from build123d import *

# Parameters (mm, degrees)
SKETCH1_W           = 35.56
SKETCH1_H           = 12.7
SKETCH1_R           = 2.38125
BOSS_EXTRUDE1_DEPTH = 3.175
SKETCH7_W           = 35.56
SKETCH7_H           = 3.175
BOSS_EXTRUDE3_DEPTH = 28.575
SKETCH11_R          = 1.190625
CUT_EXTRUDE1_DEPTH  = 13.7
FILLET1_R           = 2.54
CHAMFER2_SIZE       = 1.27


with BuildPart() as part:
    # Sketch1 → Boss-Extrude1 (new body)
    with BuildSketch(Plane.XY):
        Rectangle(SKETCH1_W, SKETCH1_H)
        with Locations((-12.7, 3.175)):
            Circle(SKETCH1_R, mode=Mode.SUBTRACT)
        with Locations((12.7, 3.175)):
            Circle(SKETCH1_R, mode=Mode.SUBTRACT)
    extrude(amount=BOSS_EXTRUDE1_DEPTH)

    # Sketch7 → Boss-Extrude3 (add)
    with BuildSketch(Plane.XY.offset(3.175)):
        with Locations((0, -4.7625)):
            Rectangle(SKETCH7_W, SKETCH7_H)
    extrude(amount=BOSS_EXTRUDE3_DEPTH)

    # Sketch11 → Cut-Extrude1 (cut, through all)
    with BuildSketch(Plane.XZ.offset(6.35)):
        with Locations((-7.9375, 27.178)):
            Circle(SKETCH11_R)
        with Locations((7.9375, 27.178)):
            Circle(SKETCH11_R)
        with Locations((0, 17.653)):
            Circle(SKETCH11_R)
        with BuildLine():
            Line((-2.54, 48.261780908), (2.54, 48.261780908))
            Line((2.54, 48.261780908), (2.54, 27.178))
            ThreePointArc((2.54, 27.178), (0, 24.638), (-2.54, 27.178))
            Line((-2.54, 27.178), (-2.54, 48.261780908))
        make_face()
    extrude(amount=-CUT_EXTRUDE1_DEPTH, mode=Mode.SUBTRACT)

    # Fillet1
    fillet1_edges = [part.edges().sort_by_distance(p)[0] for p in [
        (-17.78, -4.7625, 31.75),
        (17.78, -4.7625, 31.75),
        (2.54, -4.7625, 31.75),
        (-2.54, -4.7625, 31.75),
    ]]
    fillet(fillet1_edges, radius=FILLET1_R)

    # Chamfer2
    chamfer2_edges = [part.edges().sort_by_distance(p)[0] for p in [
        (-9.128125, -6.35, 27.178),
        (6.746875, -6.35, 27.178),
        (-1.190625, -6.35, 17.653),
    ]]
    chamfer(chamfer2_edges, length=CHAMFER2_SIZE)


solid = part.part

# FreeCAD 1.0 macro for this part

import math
import FreeCAD as App
import Part
import Sketcher
from FreeCAD import Vector
Q = App.Units.Quantity


def edges_at(feature, points):
    """Names of the edges that pass closest to the given points."""
    edges = feature.Shape.Edges
    near = lambda p: min(range(len(edges)), key=lambda i: edges[i].distToShape(Part.Vertex(*p))[0])
    return sorted({f"Edge{near(p) + 1}" for p in points})

doc = App.newDocument("Part")
body = doc.addObject("PartDesign::Body", "Body")

sketch1 = body.newObject("Sketcher::SketchObject", "Sketch")
sketch1.AttachmentSupport = (doc.getObject("XY_Plane"), [""])
sketch1.MapMode = "FlatFace"
sketch1.addGeometry([
    Part.LineSegment(Vector(-17.8, 6.3, 0), Vector(-17.8, -6.3, 0)),
    Part.LineSegment(Vector(-17.8, -6.3, 0), Vector(17.8, -6.3, 0)),
    Part.LineSegment(Vector(17.8, -6.3, 0), Vector(17.8, 6.3, 0)),
    Part.LineSegment(Vector(17.8, 6.3, 0), Vector(-17.8, 6.3, 0)),
    Part.Circle(Vector(-12.7, 3.2, 0), Vector(0, 0, 1), 2.4),
    Part.Circle(Vector(12.7, 3.2, 0), Vector(0, 0, 1), 2.4),
], False)
sketch1.addConstraint([
    Sketcher.Constraint("Coincident", 0, 2, 1, 1),
    Sketcher.Constraint("Coincident", 1, 2, 2, 1),
    Sketcher.Constraint("Coincident", 2, 2, 3, 1),
    Sketcher.Constraint("Coincident", 3, 2, 0, 1),
    Sketcher.Constraint("Vertical", 0),
    Sketcher.Constraint("Horizontal", 1),
    Sketcher.Constraint("Vertical", 2),
    Sketcher.Constraint("Horizontal", 3),
    Sketcher.Constraint("Equal", 4, 5),
    Sketcher.Constraint("Symmetric", 0, 2, 2, 2, -1, 1),
    Sketcher.Constraint("Symmetric", 4, 3, 5, 3, -2),
    Sketcher.Constraint("Diameter", 4, Q("0.1875 in")),
    Sketcher.Constraint("DistanceX", 1, 1, 1, 2, Q("1.4 in")),
    Sketcher.Constraint("DistanceY", 0, 2, 0, 1, Q("0.5 in")),
    Sketcher.Constraint("DistanceX", 4, 3, 5, 3, Q("1 in")),
    Sketcher.Constraint("DistanceY", -1, 1, 4, 3, Q("0.125 in")),
])
pad1 = body.newObject("PartDesign::Pad", "Pad")
pad1.Profile = sketch1
pad1.Length = Q("0.125 in")

sketch2 = body.newObject("Sketcher::SketchObject", "Sketch001")
sketch2.AttachmentSupport = (doc.getObject("XY_Plane"), [""])
sketch2.MapMode = "FlatFace"
sketch2.AttachmentOffset = App.Placement(Vector(0, 0, 0.125 * 25.4), App.Rotation())
sketch2.addGeometry([
    Part.LineSegment(Vector(-17.8, -3.2, 0), Vector(-17.8, -6.3, 0)),
    Part.LineSegment(Vector(-17.8, -6.3, 0), Vector(17.8, -6.3, 0)),
    Part.LineSegment(Vector(17.8, -6.3, 0), Vector(17.8, -3.2, 0)),
    Part.LineSegment(Vector(17.8, -3.2, 0), Vector(-17.8, -3.2, 0)),
], False)
sketch2.addConstraint([
    Sketcher.Constraint("Coincident", 0, 2, 1, 1),
    Sketcher.Constraint("Coincident", 1, 2, 2, 1),
    Sketcher.Constraint("Coincident", 2, 2, 3, 1),
    Sketcher.Constraint("Coincident", 3, 2, 0, 1),
    Sketcher.Constraint("Vertical", 0),
    Sketcher.Constraint("Horizontal", 1),
    Sketcher.Constraint("Vertical", 2),
    Sketcher.Constraint("Horizontal", 3),
    Sketcher.Constraint("DistanceX", 1, 1, 1, 2, Q("1.4 in")),
    Sketcher.Constraint("DistanceX", 0, 2, -1, 1, Q("0.7 in")),
    Sketcher.Constraint("DistanceY", 0, 2, 0, 1, Q("0.125 in")),
    Sketcher.Constraint("DistanceY", 0, 2, -1, 1, Q("0.25 in")),
])
pad2 = body.newObject("PartDesign::Pad", "Pad001")
pad2.Profile = sketch2
pad2.Length = Q("1.125 in")

sketch3 = body.newObject("Sketcher::SketchObject", "Sketch002")
sketch3.AttachmentSupport = (doc.getObject("XZ_Plane"), [""])
sketch3.MapMode = "FlatFace"
sketch3.AttachmentOffset = App.Placement(Vector(0, 0, 0.25 * 25.4), App.Rotation())
sketch3.addGeometry([
    Part.Circle(Vector(-7.9, 27.2, 0), Vector(0, 0, 1), 1.2),
    Part.Circle(Vector(7.9, 27.2, 0), Vector(0, 0, 1), 1.2),
    Part.Circle(Vector(0, 17.7, 0), Vector(0, 0, 1), 1.2),
    Part.LineSegment(Vector(2.5, 48.3, 0), Vector(-2.5, 48.3, 0)),
    Part.LineSegment(Vector(-2.5, 48.3, 0), Vector(-2.5, 27.2, 0)),
    Part.ArcOfCircle(Part.Circle(Vector(0, 27.2, 0), Vector(0, 0, 1), 2.5), math.radians(180), math.radians(360)),
    Part.LineSegment(Vector(2.5, 27.2, 0), Vector(2.5, 48.3, 0)),
], False)
sketch3.addConstraint([
    Sketcher.Constraint("Coincident", 3, 2, 4, 1),
    Sketcher.Constraint("Tangent", 4, 2, 5, 1),
    Sketcher.Constraint("Tangent", 5, 2, 6, 1),
    Sketcher.Constraint("Coincident", 6, 2, 3, 1),
    Sketcher.Constraint("Horizontal", 3),
    Sketcher.Constraint("Vertical", 4),
    Sketcher.Constraint("Vertical", 6),
    Sketcher.Constraint("Equal", 0, 1),
    Sketcher.Constraint("Equal", 1, 2),
    Sketcher.Constraint("Symmetric", 0, 3, 1, 3, -2),
    Sketcher.Constraint("PointOnObject", 2, 3, -2),
    Sketcher.Constraint("PointOnObject", 5, 3, -2),
    Sketcher.Constraint("Horizontal", 1, 3, 5, 3),
    Sketcher.Constraint("Radius", 5, Q("0.1 in")),
    Sketcher.Constraint("Diameter", 0, Q("0.09375 in")),
    Sketcher.Constraint("DistanceY", -1, 1, 0, 3, Q("1.07 in")),
    Sketcher.Constraint("DistanceX", 0, 3, -1, 1, Q("0.3125 in")),
    Sketcher.Constraint("DistanceY", -1, 1, 2, 3, Q("0.695 in")),
    Sketcher.Constraint("DistanceY", 4, 2, 4, 1, Q("21.083781 mm")),
])
pocket1 = body.newObject("PartDesign::Pocket", "Pocket")
pocket1.Profile = sketch3
pocket1.Type = "ThroughAll"
doc.recompute()

fillet = body.newObject("PartDesign::Fillet", "Fillet")
fillet.Base = (pocket1, edges_at(pocket1, [
    (-17.78, -4.763, 31.75),
    (17.78, -4.763, 31.75),
    (2.54, -4.763, 31.75),
    (-2.54, -4.763, 31.75),
]))
fillet.Radius = Q("0.1 in")
doc.recompute()

chamfer = body.newObject("PartDesign::Chamfer", "Chamfer")
chamfer.Base = (fillet, edges_at(fillet, [(-9.128, -6.35, 27.178), (6.747, -6.35, 27.178), (-1.191, -6.35, 17.653)]))
chamfer.Size = Q("0.05 in")

doc.recompute()
